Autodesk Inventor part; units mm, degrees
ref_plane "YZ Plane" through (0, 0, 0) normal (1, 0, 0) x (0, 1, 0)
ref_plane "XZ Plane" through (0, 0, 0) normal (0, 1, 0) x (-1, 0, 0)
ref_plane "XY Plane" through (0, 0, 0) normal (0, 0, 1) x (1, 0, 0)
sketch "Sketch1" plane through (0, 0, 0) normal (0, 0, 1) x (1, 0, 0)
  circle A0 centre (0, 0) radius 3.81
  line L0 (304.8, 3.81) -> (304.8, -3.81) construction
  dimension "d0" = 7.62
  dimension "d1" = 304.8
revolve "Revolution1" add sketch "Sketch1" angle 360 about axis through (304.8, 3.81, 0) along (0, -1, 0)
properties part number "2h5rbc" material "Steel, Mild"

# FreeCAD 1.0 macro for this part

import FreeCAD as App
import Part
import Sketcher
from FreeCAD import Vector
Q = App.Units.Quantity

doc = App.newDocument("Part")
params = doc.addObject("Spreadsheet::Sheet", "Params")
for row, (alias, value) in enumerate([
    ("sketch1_diameter", "0.3 in"),
    ("revolution_angle", "360 deg"),
], start=1):
    params.set(f"A{row}", alias)
    params.set(f"B{row}", "=" + value)
    params.setAlias(f"B{row}", alias)

body = doc.addObject("PartDesign::Body", "Body")

# Sketch on XY plane
sketch1 = doc.addObject("Sketcher::SketchObject", "Sketch")
body.addObject(sketch1)
sketch1.AttachmentSupport = (doc.XY_Plane, [""])
sketch1.MapMode = "FlatFace"
sketch1.addGeometry(Part.Circle(Vector(0, 0, 0), Vector(0, 0, 1), 3.8), False)
sketch1.addGeometry(Part.LineSegment(Vector(304.8, 0, 0), Vector(304.8, -10, 0)), True)  # axis
sketch1.addConstraint(Sketcher.Constraint("Vertical", 1))
sketch1.addConstraint(Sketcher.Constraint("Coincident", 0, 3, -1, 1))
sketch1.addConstraint(Sketcher.Constraint("PointOnObject", 1, 1, -1))
sketch1.addConstraint(Sketcher.Constraint("Diameter", 0, Q("0.3 in")))
sketch1.addConstraint(Sketcher.Constraint("DistanceX", -1, 1, 1, 1, Q("12 in")))
sketch1.addConstraint(Sketcher.Constraint("DistanceY", 1, 2, 1, 1, Q("0.3937 in")))
sketch1.setExpression("Constraints[3]", "Params.sketch1_diameter")
revolution = doc.addObject("PartDesign::Revolution", "Revolution")
body.addObject(revolution)
revolution.Profile = sketch1
revolution.ReferenceAxis = (sketch1, ["Axis0"])
revolution.setExpression("Angle", "Params.revolution_angle")

doc.recompute()
